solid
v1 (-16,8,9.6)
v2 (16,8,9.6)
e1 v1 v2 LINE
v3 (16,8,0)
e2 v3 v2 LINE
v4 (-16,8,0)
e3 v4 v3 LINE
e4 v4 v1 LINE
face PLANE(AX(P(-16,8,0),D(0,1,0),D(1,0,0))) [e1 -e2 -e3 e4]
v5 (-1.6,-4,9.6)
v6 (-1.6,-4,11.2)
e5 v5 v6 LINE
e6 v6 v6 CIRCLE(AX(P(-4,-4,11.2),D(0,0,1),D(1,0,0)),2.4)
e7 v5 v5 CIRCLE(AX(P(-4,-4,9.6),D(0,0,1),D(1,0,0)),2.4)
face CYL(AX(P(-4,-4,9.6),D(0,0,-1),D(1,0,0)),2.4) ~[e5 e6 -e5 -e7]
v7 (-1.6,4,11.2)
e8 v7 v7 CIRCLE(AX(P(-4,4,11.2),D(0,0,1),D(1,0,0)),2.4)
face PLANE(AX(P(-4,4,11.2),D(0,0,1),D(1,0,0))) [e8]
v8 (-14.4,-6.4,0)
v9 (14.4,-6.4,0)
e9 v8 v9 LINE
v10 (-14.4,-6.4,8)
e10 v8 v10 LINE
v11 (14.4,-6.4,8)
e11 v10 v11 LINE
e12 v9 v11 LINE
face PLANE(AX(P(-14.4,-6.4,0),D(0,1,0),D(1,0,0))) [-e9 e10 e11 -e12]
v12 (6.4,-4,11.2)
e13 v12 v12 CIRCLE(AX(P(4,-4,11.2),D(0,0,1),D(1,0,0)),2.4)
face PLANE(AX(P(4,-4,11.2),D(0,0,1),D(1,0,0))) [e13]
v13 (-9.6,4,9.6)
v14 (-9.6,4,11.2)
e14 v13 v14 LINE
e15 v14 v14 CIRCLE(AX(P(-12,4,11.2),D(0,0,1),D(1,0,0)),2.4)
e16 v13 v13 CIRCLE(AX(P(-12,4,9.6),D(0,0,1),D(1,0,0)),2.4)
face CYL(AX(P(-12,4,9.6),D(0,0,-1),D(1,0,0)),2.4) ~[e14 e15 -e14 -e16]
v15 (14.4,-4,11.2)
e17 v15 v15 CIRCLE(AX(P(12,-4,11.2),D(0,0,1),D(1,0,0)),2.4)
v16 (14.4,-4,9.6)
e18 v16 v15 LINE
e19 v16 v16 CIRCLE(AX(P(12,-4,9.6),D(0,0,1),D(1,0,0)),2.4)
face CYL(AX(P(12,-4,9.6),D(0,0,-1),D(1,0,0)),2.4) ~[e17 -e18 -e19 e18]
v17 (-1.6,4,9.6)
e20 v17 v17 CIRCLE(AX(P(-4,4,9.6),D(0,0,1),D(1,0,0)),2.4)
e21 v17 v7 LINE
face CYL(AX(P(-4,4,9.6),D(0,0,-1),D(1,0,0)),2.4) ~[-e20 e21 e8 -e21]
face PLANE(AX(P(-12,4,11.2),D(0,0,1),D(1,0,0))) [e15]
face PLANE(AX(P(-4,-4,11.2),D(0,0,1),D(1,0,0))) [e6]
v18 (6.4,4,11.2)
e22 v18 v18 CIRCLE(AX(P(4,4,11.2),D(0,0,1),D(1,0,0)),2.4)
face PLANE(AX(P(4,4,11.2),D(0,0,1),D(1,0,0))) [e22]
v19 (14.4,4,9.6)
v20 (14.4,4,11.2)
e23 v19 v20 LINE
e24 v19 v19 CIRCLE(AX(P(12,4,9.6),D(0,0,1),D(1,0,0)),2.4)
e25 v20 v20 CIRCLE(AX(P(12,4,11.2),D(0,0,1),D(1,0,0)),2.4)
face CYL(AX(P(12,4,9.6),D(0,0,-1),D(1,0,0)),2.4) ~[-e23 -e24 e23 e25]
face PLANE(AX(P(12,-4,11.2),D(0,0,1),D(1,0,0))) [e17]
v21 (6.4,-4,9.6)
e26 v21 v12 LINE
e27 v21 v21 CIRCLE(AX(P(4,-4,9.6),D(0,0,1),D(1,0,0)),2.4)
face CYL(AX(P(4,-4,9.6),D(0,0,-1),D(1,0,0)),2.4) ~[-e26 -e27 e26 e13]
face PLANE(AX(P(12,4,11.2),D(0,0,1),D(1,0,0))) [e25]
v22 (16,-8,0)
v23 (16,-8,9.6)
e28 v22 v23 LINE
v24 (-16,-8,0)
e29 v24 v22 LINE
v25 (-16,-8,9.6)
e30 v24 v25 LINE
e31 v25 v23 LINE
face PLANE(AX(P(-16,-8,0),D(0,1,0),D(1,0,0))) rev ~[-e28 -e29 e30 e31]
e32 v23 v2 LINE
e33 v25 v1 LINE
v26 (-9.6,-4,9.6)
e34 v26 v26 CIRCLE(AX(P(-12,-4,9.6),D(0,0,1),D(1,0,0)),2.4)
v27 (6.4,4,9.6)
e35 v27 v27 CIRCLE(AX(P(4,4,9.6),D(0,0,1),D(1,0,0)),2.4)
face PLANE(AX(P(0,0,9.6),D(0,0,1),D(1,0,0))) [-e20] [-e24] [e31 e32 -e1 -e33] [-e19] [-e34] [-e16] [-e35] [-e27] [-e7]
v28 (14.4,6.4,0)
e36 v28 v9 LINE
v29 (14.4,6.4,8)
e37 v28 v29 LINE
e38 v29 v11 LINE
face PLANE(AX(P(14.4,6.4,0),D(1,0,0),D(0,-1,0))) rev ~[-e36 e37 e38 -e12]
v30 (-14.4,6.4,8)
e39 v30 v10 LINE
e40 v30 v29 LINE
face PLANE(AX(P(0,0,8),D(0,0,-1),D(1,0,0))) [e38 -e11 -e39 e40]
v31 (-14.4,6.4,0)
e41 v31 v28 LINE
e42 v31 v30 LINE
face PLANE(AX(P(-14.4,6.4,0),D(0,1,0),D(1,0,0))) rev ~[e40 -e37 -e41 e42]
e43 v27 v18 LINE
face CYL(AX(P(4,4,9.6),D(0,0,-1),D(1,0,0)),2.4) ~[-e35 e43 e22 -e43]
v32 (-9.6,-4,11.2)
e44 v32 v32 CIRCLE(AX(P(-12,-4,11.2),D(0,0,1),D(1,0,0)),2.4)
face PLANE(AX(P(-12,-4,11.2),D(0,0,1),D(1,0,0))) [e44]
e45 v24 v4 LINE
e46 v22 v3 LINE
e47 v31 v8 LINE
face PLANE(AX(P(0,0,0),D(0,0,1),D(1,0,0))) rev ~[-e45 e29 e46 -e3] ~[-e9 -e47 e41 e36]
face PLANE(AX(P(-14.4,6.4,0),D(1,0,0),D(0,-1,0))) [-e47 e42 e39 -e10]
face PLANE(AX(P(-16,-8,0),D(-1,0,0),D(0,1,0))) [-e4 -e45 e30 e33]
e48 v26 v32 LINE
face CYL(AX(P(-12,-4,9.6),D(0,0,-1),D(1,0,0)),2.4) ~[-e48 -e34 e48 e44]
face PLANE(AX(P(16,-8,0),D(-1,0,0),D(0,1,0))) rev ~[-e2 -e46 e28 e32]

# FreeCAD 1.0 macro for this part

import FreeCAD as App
import Part
import Sketcher
from FreeCAD import Vector
Q = App.Units.Quantity

doc = App.newDocument("Part")
params = doc.addObject("Spreadsheet::Sheet", "Params")
for row, (alias, value) in enumerate([
    ("sketch1_width", "32 mm"),
    ("sketch1_height", "16 mm"),
    ("pad1_length", "9.6 mm"),
    ("sketch2_width", "28.8 mm"),
    ("sketch2_height", "12.8 mm"),
    ("pocket1_length", "8 mm"),
    ("sketch3_diameter", "4.8 mm"),
    ("pad2_length", "1.6 mm"),
], start=1):
    params.set(f"A{row}", alias)
    params.set(f"B{row}", "=" + value)
    params.setAlias(f"B{row}", alias)

body = doc.addObject("PartDesign::Body", "Body")

sketch1 = body.newObject("Sketcher::SketchObject", "Sketch")
sketch1.AttachmentSupport = (doc.getObject("XY_Plane"), [""])
sketch1.MapMode = "FlatFace"
sketch1.addGeometry([
    Part.LineSegment(Vector(-16, 8, 0), Vector(-16, -8, 0)),
    Part.LineSegment(Vector(-16, -8, 0), Vector(16, -8, 0)),
    Part.LineSegment(Vector(16, -8, 0), Vector(16, 8, 0)),
    Part.LineSegment(Vector(16, 8, 0), Vector(-16, 8, 0)),
], False)
sketch1.addConstraint([
    Sketcher.Constraint("Coincident", 0, 2, 1, 1),
    Sketcher.Constraint("Coincident", 1, 2, 2, 1),
    Sketcher.Constraint("Coincident", 2, 2, 3, 1),
    Sketcher.Constraint("Coincident", 3, 2, 0, 1),
    Sketcher.Constraint("Vertical", 0),
    Sketcher.Constraint("Horizontal", 1),
    Sketcher.Constraint("Vertical", 2),
    Sketcher.Constraint("Horizontal", 3),
    Sketcher.Constraint("Symmetric", 0, 2, 2, 2, -1, 1),
    Sketcher.Constraint("DistanceX", 1, 1, 1, 2, Q("32 mm")),
    Sketcher.Constraint("DistanceY", 0, 2, 0, 1, Q("16 mm")),
])
sketch1.setExpression("Constraints[9]", "Params.sketch1_width")
sketch1.setExpression("Constraints[10]", "Params.sketch1_height")
pad1 = body.newObject("PartDesign::Pad", "Pad")
pad1.Profile = sketch1
pad1.setExpression("Length", "Params.pad1_length")

sketch2 = body.newObject("Sketcher::SketchObject", "Sketch001")
sketch2.AttachmentSupport = (doc.getObject("XY_Plane"), [""])
sketch2.MapMode = "FlatFace"
sketch2.addGeometry([
    Part.LineSegment(Vector(-14, -6, 0), Vector(-14, 6, 0)),
    Part.LineSegment(Vector(-14, 6, 0), Vector(14, 6, 0)),
    Part.LineSegment(Vector(14, 6, 0), Vector(14, -6, 0)),
    Part.LineSegment(Vector(14, -6, 0), Vector(-14, -6, 0)),
], False)
sketch2.addConstraint([
    Sketcher.Constraint("Coincident", 0, 2, 1, 1),
    Sketcher.Constraint("Coincident", 1, 2, 2, 1),
    Sketcher.Constraint("Coincident", 2, 2, 3, 1),
    Sketcher.Constraint("Coincident", 3, 2, 0, 1),
    Sketcher.Constraint("Vertical", 0),
    Sketcher.Constraint("Horizontal", 1),
    Sketcher.Constraint("Vertical", 2),
    Sketcher.Constraint("Horizontal", 3),
    Sketcher.Constraint("Symmetric", 0, 2, 2, 2, -1, 1),
    Sketcher.Constraint("DistanceX", 1, 1, 1, 2, Q("28.8 mm")),
    Sketcher.Constraint("DistanceY", 0, 1, 0, 2, Q("12.8 mm")),
])
sketch2.setExpression("Constraints[9]", "Params.sketch2_width")
sketch2.setExpression("Constraints[10]", "Params.sketch2_height")
pocket1 = body.newObject("PartDesign::Pocket", "Pocket")
pocket1.Profile = sketch2
pocket1.setExpression("Length", "Params.pocket1_length")
pocket1.Reversed = True

sketch3 = body.newObject("Sketcher::SketchObject", "Sketch002")
sketch3.AttachmentSupport = (doc.getObject("XY_Plane"), [""])
sketch3.MapMode = "FlatFace"
sketch3.AttachmentOffset = App.Placement(Vector(0, 0, 9.6), App.Rotation())
sketch3.addGeometry([
    Part.Circle(Vector(-12, 4, 0), Vector(0, 0, 1), 2.4),
    Part.Circle(Vector(-4, 4, 0), Vector(0, 0, 1), 2.4),
    Part.Circle(Vector(4, 4, 0), Vector(0, 0, 1), 2.4),
    Part.Circle(Vector(12, 4, 0), Vector(0, 0, 1), 2.4),
    Part.Circle(Vector(-12, -4, 0), Vector(0, 0, 1), 2.4),
    Part.Circle(Vector(-4, -4, 0), Vector(0, 0, 1), 2.4),
    Part.Circle(Vector(4, -4, 0), Vector(0, 0, 1), 2.4),
    Part.Circle(Vector(12, -4, 0), Vector(0, 0, 1), 2.4),
], False)
sketch3.addConstraint([
    Sketcher.Constraint("Equal", 0, 1),
    Sketcher.Constraint("Equal", 1, 2),
    Sketcher.Constraint("Equal", 2, 3),
    Sketcher.Constraint("Equal", 3, 4),
    Sketcher.Constraint("Equal", 4, 5),
    Sketcher.Constraint("Equal", 5, 6),
    Sketcher.Constraint("Equal", 6, 7),
    Sketcher.Constraint("Symmetric", 3, 3, 4, 3, -1, 1),
    Sketcher.Constraint("Symmetric", 2, 3, 5, 3, -1, 1),
    Sketcher.Constraint("Symmetric", 1, 3, 6, 3, -1, 1),
    Sketcher.Constraint("Symmetric", 0, 3, 7, 3, -1, 1),
    Sketcher.Constraint("Symmetric", 1, 3, 2, 3, -2),
    Sketcher.Constraint("Symmetric", 0, 3, 3, 3, -2),
    Sketcher.Constraint("Horizontal", 0, 3, 1, 3),
    Sketcher.Constraint("Diameter", 0, Q("4.8 mm")),
    Sketcher.Constraint("DistanceX", 0, 3, -1, 1, Q("12 mm")),
    Sketcher.Constraint("DistanceY", -1, 1, 0, 3, Q("4 mm")),
    Sketcher.Constraint("DistanceX", 1, 3, -1, 1, Q("4 mm")),
])
sketch3.setExpression("Constraints[14]", "Params.sketch3_diameter")
pad2 = body.newObject("PartDesign::Pad", "Pad001")
pad2.Profile = sketch3
pad2.setExpression("Length", "Params.pad2_length")

doc.recompute()
